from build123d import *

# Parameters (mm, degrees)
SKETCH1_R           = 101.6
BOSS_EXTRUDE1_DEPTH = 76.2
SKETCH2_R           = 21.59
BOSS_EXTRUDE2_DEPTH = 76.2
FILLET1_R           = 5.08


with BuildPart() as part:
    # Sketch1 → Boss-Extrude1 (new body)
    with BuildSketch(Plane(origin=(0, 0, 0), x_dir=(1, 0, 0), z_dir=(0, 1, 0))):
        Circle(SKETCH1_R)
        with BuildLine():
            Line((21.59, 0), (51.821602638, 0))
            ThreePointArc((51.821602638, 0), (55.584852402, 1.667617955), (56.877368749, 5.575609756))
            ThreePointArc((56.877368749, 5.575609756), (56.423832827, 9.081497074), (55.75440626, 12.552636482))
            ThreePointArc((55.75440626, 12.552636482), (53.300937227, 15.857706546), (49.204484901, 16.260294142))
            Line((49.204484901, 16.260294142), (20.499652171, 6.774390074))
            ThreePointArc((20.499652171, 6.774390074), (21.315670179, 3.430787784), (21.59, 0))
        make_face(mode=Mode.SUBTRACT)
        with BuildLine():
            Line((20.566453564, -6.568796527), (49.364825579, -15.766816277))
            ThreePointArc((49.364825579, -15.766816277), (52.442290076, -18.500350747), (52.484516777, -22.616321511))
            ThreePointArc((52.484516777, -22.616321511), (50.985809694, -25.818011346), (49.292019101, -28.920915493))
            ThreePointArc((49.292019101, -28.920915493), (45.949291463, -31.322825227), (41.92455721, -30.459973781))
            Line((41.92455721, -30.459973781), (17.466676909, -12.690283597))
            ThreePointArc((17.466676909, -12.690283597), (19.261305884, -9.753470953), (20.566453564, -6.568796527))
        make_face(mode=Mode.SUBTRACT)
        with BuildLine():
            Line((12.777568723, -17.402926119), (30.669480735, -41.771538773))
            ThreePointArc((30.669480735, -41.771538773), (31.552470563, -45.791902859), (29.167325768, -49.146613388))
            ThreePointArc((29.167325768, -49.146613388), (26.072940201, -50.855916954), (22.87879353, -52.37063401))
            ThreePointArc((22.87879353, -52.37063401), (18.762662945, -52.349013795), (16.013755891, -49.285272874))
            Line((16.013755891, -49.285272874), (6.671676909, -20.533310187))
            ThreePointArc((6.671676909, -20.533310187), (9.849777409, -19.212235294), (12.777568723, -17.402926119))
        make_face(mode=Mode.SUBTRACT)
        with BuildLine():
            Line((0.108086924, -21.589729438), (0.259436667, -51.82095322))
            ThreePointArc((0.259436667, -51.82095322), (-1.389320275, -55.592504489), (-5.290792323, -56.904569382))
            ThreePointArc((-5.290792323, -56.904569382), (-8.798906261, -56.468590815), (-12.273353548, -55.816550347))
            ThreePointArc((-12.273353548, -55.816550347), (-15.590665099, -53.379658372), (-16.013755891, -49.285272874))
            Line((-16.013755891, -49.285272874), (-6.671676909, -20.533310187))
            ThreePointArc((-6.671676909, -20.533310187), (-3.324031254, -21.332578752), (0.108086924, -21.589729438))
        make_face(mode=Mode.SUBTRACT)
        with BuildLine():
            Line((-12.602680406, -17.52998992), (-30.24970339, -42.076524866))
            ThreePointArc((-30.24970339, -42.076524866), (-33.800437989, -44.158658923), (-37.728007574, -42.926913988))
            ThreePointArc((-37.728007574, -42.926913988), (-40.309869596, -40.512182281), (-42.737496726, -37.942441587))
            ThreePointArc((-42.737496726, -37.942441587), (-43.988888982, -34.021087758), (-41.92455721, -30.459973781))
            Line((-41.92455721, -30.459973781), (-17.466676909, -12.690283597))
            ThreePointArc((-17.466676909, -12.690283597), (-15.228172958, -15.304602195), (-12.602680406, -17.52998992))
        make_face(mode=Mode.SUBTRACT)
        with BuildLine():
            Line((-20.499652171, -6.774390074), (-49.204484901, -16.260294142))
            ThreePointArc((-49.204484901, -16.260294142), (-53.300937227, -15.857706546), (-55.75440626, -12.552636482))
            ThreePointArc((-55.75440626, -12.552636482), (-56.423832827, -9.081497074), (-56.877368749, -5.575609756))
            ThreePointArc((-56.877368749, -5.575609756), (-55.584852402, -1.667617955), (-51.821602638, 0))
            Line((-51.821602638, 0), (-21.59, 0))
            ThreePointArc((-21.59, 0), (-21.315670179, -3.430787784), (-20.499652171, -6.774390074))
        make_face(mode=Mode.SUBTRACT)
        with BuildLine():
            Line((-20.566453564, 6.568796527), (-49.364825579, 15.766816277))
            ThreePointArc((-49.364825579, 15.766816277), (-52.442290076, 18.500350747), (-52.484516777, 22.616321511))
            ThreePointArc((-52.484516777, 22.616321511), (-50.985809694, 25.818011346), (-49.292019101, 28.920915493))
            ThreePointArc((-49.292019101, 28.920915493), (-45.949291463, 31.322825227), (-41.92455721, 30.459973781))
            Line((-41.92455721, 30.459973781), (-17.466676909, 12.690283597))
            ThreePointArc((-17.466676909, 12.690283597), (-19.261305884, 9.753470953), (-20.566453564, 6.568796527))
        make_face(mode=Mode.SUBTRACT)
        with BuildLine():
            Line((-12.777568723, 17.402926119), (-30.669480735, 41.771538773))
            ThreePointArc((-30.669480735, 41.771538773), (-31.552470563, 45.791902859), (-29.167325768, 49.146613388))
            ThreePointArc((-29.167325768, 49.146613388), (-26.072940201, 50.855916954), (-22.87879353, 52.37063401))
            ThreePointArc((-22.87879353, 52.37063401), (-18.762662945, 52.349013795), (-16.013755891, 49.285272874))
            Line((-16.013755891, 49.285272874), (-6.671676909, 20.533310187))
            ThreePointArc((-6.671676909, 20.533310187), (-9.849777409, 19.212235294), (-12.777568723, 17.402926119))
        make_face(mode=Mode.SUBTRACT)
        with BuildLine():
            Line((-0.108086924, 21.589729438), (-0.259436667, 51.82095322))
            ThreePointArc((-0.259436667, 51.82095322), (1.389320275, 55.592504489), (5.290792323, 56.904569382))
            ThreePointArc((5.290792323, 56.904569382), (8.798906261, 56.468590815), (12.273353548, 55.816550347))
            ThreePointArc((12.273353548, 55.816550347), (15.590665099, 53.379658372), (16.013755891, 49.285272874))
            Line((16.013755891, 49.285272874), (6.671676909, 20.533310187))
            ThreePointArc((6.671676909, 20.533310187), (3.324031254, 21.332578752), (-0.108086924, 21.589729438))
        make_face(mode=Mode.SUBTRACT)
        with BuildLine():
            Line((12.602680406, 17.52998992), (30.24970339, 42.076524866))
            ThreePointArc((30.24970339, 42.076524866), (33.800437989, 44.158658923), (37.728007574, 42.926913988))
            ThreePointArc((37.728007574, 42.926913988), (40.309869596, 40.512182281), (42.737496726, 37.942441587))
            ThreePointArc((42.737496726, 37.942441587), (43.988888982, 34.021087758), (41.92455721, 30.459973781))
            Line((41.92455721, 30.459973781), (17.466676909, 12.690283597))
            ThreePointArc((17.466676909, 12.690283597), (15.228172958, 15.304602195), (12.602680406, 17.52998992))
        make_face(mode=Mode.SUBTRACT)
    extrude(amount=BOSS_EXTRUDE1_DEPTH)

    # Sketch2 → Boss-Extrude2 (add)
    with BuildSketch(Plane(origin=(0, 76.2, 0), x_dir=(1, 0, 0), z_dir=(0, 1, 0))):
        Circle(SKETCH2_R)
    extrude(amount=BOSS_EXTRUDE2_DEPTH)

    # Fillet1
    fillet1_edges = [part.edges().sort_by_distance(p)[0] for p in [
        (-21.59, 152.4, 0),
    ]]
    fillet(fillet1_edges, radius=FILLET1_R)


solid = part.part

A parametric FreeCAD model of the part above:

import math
import FreeCAD as App
import Part
import Sketcher

V = App.Vector
Q = App.Units.Quantity


def edges_at(feature, points):
    """Names of the edges that pass closest to the given points."""
    edges = feature.Shape.Edges
    near = lambda p: min(range(len(edges)), key=lambda i: edges[i].distToShape(Part.Vertex(*p))[0])
    return sorted({f"Edge{near(p) + 1}" for p in points})

doc = App.newDocument("Part")
body = doc.addObject("PartDesign::Body", "Body")

sketch1 = doc.addObject("Sketcher::SketchObject", "Sketch")
body.addObject(sketch1)
sketch1.AttachmentSupport = (doc.XZ_Plane, [""])
sketch1.MapMode = "FlatFace"
sketch1.addGeometry(Part.Circle(V(0, 0, 0), V(0, 0, 1), 102), False)
sketch1.addGeometry(Part.ArcOfCircle(Part.Circle(V(0, 0, 0), V(0, 0, 1), 22), math.radians(89.71), math.radians(108)), False)
sketch1.addGeometry(Part.LineSegment(V(0, 22, 0), V(0, 52, 0)), False)
sketch1.addGeometry(Part.ArcOfCircle(Part.Circle(V(-5, 52, 0), V(0, 0, 1), 5), math.radians(0), math.radians(95)), False)
sketch1.addGeometry(Part.ArcOfCircle(Part.Circle(V(0, 0, 0), V(0, 0, 1), 57), math.radians(95.31), math.radians(102.4)), False)
sketch1.addGeometry(Part.ArcOfCircle(Part.Circle(V(-11, 51, 0), V(0, 0, 1), 5), math.radians(102), math.radians(198)), False)
sketch1.addGeometry(Part.LineSegment(V(-16, 49, 0), V(-7, 21, 0)), False)
sketch1.addGeometry(Part.ArcOfCircle(Part.Circle(V(0, 0, 0), V(0, 0, 1), 22), math.radians(161.71), math.radians(180)), False)
sketch1.addGeometry(Part.LineSegment(V(-20, 7, 0), V(-49, 16, 0)), False)
sketch1.addGeometry(Part.ArcOfCircle(Part.Circle(V(-51, 11, 0), V(0, 0, 1), 5), math.radians(72), math.radians(167)), False)
sketch1.addGeometry(Part.ArcOfCircle(Part.Circle(V(0, 0, 0), V(0, 0, 1), 57), math.radians(167.31), math.radians(174.4)), False)
sketch1.addGeometry(Part.ArcOfCircle(Part.Circle(V(-52, 5, 0), V(0, 0, 1), 5), math.radians(174), math.radians(270)), False)
sketch1.addGeometry(Part.LineSegment(V(-52, 0, 0), V(-22, 0, 0)), False)
sketch1.addGeometry(Part.ArcOfCircle(Part.Circle(V(0, 0, 0), V(0, 0, 1), 22), math.radians(125.71), math.radians(144)), False)
sketch1.addGeometry(Part.LineSegment(V(-13, 18, 0), V(-30, 42, 0)), False)
sketch1.addGeometry(Part.ArcOfCircle(Part.Circle(V(-34, 39, 0), V(0, 0, 1), 5), math.radians(36), math.radians(131)), False)
sketch1.addGeometry(Part.ArcOfCircle(Part.Circle(V(0, 0, 0), V(0, 0, 1), 57), math.radians(131.31), math.radians(138.4)), False)
sketch1.addGeometry(Part.ArcOfCircle(Part.Circle(V(-39, 35, 0), V(0, 0, 1), 5), math.radians(138), math.radians(234)), False)
sketch1.addGeometry(Part.LineSegment(V(-42, 30, 0), V(-17, 13, 0)), False)
sketch1.addGeometry(Part.ArcOfCircle(Part.Circle(V(0, 0, 0), V(0, 0, 1), 22), math.radians(53.71), math.radians(72)), False)
sketch1.addGeometry(Part.LineSegment(V(13, 17, 0), V(31, 42, 0)), False)
sketch1.addGeometry(Part.ArcOfCircle(Part.Circle(V(27, 45, 0), V(0, 0, 1), 5), math.radians(-36), math.radians(59)), False)
sketch1.addGeometry(Part.ArcOfCircle(Part.Circle(V(0, 0, 0), V(0, 0, 1), 57), math.radians(59.31), math.radians(66.4)), False)
sketch1.addGeometry(Part.ArcOfCircle(Part.Circle(V(21, 48, 0), V(0, 0, 1), 5), math.radians(66), math.radians(162)), False)
sketch1.addGeometry(Part.LineSegment(V(16, 49, 0), V(7, 21, 0)), False)
sketch1.addGeometry(Part.ArcOfCircle(Part.Circle(V(0, 0, 0), V(0, 0, 1), 22), math.radians(17.71), math.radians(36)), False)
sketch1.addGeometry(Part.LineSegment(V(21, 7, 0), V(49, 16, 0)), False)
sketch1.addGeometry(Part.ArcOfCircle(Part.Circle(V(48, 21, 0), V(0, 0, 1), 5), math.radians(-72), math.radians(23)), False)
sketch1.addGeometry(Part.ArcOfCircle(Part.Circle(V(0, 0, 0), V(0, 0, 1), 57), math.radians(23.31), math.radians(30.4)), False)
sketch1.addGeometry(Part.ArcOfCircle(Part.Circle(V(45, 26, 0), V(0, 0, 1), 5), math.radians(30), math.radians(126)), False)
sketch1.addGeometry(Part.LineSegment(V(42, 30, 0), V(17, 13, 0)), False)
sketch1.addGeometry(Part.ArcOfCircle(Part.Circle(V(0, 0, 0), V(0, 0, 1), 22), math.radians(-162.29), math.radians(-144)), False)
sketch1.addGeometry(Part.LineSegment(V(-21, -7, 0), V(-49, -16, 0)), False)
sketch1.addGeometry(Part.ArcOfCircle(Part.Circle(V(-48, -21, 0), V(0, 0, 1), 5), math.radians(108), math.radians(203)), False)
sketch1.addGeometry(Part.ArcOfCircle(Part.Circle(V(0, 0, 0), V(0, 0, 1), 57), math.radians(-156.69), math.radians(-149.6)), False)
sketch1.addGeometry(Part.ArcOfCircle(Part.Circle(V(-45, -26, 0), V(0, 0, 1), 5), math.radians(-150), math.radians(-54)), False)
sketch1.addGeometry(Part.LineSegment(V(-42, -30, 0), V(-17, -13, 0)), False)
sketch1.addGeometry(Part.ArcOfCircle(Part.Circle(V(0, 0, 0), V(0, 0, 1), 22), math.radians(-126.29), math.radians(-108)), False)
sketch1.addGeometry(Part.LineSegment(V(-13, -17, 0), V(-31, -42, 0)), False)
sketch1.addGeometry(Part.ArcOfCircle(Part.Circle(V(-27, -45, 0), V(0, 0, 1), 5), math.radians(144), math.radians(239)), False)
sketch1.addGeometry(Part.ArcOfCircle(Part.Circle(V(0, 0, 0), V(0, 0, 1), 57), math.radians(-120.69), math.radians(-113.6)), False)
sketch1.addGeometry(Part.ArcOfCircle(Part.Circle(V(-21, -48, 0), V(0, 0, 1), 5), math.radians(-114), math.radians(-18)), False)
sketch1.addGeometry(Part.LineSegment(V(-16, -49, 0), V(-7, -21, 0)), False)
sketch1.addGeometry(Part.ArcOfCircle(Part.Circle(V(0, 0, 0), V(0, 0, 1), 22), math.radians(-54.29), math.radians(-36)), False)
sketch1.addGeometry(Part.LineSegment(V(13, -18, 0), V(30, -42, 0)), False)
sketch1.addGeometry(Part.ArcOfCircle(Part.Circle(V(34, -39, 0), V(0, 0, 1), 5), math.radians(-144), math.radians(-49)), False)
sketch1.addGeometry(Part.ArcOfCircle(Part.Circle(V(0, 0, 0), V(0, 0, 1), 57), math.radians(-48.69), math.radians(-41.6)), False)
sketch1.addGeometry(Part.ArcOfCircle(Part.Circle(V(39, -35, 0), V(0, 0, 1), 5), math.radians(-42), math.radians(54)), False)
sketch1.addGeometry(Part.LineSegment(V(42, -30, 0), V(17, -13, 0)), False)
sketch1.addGeometry(Part.LineSegment(V(52, 0, 0), V(22, 0, 0)), False)
sketch1.addGeometry(Part.ArcOfCircle(Part.Circle(V(0, 0, 0), V(0, 0, 1), 22), math.radians(-18.29), math.radians(0)), False)
sketch1.addGeometry(Part.LineSegment(V(20, -7, 0), V(49, -16, 0)), False)
sketch1.addGeometry(Part.ArcOfCircle(Part.Circle(V(51, -11, 0), V(0, 0, 1), 5), math.radians(-108), math.radians(-13)), False)
sketch1.addGeometry(Part.ArcOfCircle(Part.Circle(V(0, 0, 0), V(0, 0, 1), 57), math.radians(-12.69), math.radians(-5.6)), False)
sketch1.addGeometry(Part.ArcOfCircle(Part.Circle(V(52, -5, 0), V(0, 0, 1), 5), math.radians(-6), math.radians(90)), False)
sketch1.addGeometry(Part.ArcOfCircle(Part.Circle(V(0, 0, 0), V(0, 0, 1), 22), math.radians(-90.29), math.radians(-72)), False)
sketch1.addGeometry(Part.LineSegment(V(0, -22, 0), V(0, -52, 0)), False)
sketch1.addGeometry(Part.ArcOfCircle(Part.Circle(V(5, -52, 0), V(0, 0, 1), 5), math.radians(180), math.radians(275)), False)
sketch1.addGeometry(Part.ArcOfCircle(Part.Circle(V(0, 0, 0), V(0, 0, 1), 57), math.radians(-84.69), math.radians(-77.6)), False)
sketch1.addGeometry(Part.ArcOfCircle(Part.Circle(V(11, -51, 0), V(0, 0, 1), 5), math.radians(-78), math.radians(18)), False)
sketch1.addGeometry(Part.LineSegment(V(16, -49, 0), V(7, -21, 0)), False)
sketch1.addConstraint(Sketcher.Constraint("Coincident", 1, 1, 2, 1))
sketch1.addConstraint(Sketcher.Constraint("Tangent", 2, 2, 3, 1))
sketch1.addConstraint(Sketcher.Constraint("Tangent", 3, 2, 4, 1))
sketch1.addConstraint(Sketcher.Constraint("Tangent", 4, 2, 5, 1))
sketch1.addConstraint(Sketcher.Constraint("Tangent", 5, 2, 6, 1))
sketch1.addConstraint(Sketcher.Constraint("Coincident", 6, 2, 1, 2))
sketch1.addConstraint(Sketcher.Constraint("Coincident", 7, 1, 8, 1))
sketch1.addConstraint(Sketcher.Constraint("Tangent", 8, 2, 9, 1))
sketch1.addConstraint(Sketcher.Constraint("Tangent", 9, 2, 10, 1))
sketch1.addConstraint(Sketcher.Constraint("Tangent", 10, 2, 11, 1))
sketch1.addConstraint(Sketcher.Constraint("Tangent", 11, 2, 12, 1))
sketch1.addConstraint(Sketcher.Constraint("Coincident", 12, 2, 7, 2))
sketch1.addConstraint(Sketcher.Constraint("Coincident", 13, 1, 14, 1))
sketch1.addConstraint(Sketcher.Constraint("Tangent", 14, 2, 15, 1))
sketch1.addConstraint(Sketcher.Constraint("Tangent", 15, 2, 16, 1))
sketch1.addConstraint(Sketcher.Constraint("Tangent", 16, 2, 17, 1))
sketch1.addConstraint(Sketcher.Constraint("Tangent", 17, 2, 18, 1))
sketch1.addConstraint(Sketcher.Constraint("Coincident", 18, 2, 13, 2))
sketch1.addConstraint(Sketcher.Constraint("Coincident", 19, 1, 20, 1))
sketch1.addConstraint(Sketcher.Constraint("Tangent", 20, 2, 21, 1))
sketch1.addConstraint(Sketcher.Constraint("Tangent", 21, 2, 22, 1))
sketch1.addConstraint(Sketcher.Constraint("Tangent", 22, 2, 23, 1))
sketch1.addConstraint(Sketcher.Constraint("Tangent", 23, 2, 24, 1))
sketch1.addConstraint(Sketcher.Constraint("Coincident", 24, 2, 19, 2))
sketch1.addConstraint(Sketcher.Constraint("Coincident", 25, 1, 26, 1))
sketch1.addConstraint(Sketcher.Constraint("Tangent", 26, 2, 27, 1))
sketch1.addConstraint(Sketcher.Constraint("Tangent", 27, 2, 28, 1))
sketch1.addConstraint(Sketcher.Constraint("Tangent", 28, 2, 29, 1))
sketch1.addConstraint(Sketcher.Constraint("Tangent", 29, 2, 30, 1))
sketch1.addConstraint(Sketcher.Constraint("Coincident", 30, 2, 25, 2))
sketch1.addConstraint(Sketcher.Constraint("Coincident", 31, 1, 32, 1))
sketch1.addConstraint(Sketcher.Constraint("Tangent", 32, 2, 33, 1))
sketch1.addConstraint(Sketcher.Constraint("Tangent", 33, 2, 34, 1))
sketch1.addConstraint(Sketcher.Constraint("Tangent", 34, 2, 35, 1))
sketch1.addConstraint(Sketcher.Constraint("Tangent", 35, 2, 36, 1))
sketch1.addConstraint(Sketcher.Constraint("Coincident", 36, 2, 31, 2))
sketch1.addConstraint(Sketcher.Constraint("Coincident", 37, 1, 38, 1))
sketch1.addConstraint(Sketcher.Constraint("Tangent", 38, 2, 39, 1))
sketch1.addConstraint(Sketcher.Constraint("Tangent", 39, 2, 40, 1))
sketch1.addConstraint(Sketcher.Constraint("Tangent", 40, 2, 41, 1))
sketch1.addConstraint(Sketcher.Constraint("Tangent", 41, 2, 42, 1))
sketch1.addConstraint(Sketcher.Constraint("Coincident", 42, 2, 37, 2))
sketch1.addConstraint(Sketcher.Constraint("Coincident", 43, 1, 44, 1))
sketch1.addConstraint(Sketcher.Constraint("Tangent", 44, 2, 45, 1))
sketch1.addConstraint(Sketcher.Constraint("Tangent", 45, 2, 46, 1))
sketch1.addConstraint(Sketcher.Constraint("Tangent", 46, 2, 47, 1))
sketch1.addConstraint(Sketcher.Constraint("Tangent", 47, 2, 48, 1))
sketch1.addConstraint(Sketcher.Constraint("Coincident", 48, 2, 43, 2))
sketch1.addConstraint(Sketcher.Constraint("Coincident", 49, 2, 50, 2))
sketch1.addConstraint(Sketcher.Constraint("Coincident", 50, 1, 51, 1))
sketch1.addConstraint(Sketcher.Constraint("Tangent", 51, 2, 52, 1))
sketch1.addConstraint(Sketcher.Constraint("Tangent", 52, 2, 53, 1))
sketch1.addConstraint(Sketcher.Constraint("Tangent", 53, 2, 54, 1))
sketch1.addConstraint(Sketcher.Constraint("Tangent", 54, 2, 49, 1))
sketch1.addConstraint(Sketcher.Constraint("Coincident", 55, 1, 56, 1))
sketch1.addConstraint(Sketcher.Constraint("Tangent", 56, 2, 57, 1))
sketch1.addConstraint(Sketcher.Constraint("Tangent", 57, 2, 58, 1))
sketch1.addConstraint(Sketcher.Constraint("Tangent", 58, 2, 59, 1))
sketch1.addConstraint(Sketcher.Constraint("Tangent", 59, 2, 60, 1))
sketch1.addConstraint(Sketcher.Constraint("Coincident", 60, 2, 55, 2))
sketch1.addConstraint(Sketcher.Constraint("Horizontal", 12))
sketch1.addConstraint(Sketcher.Constraint("Horizontal", 49))
sketch1.addConstraint(Sketcher.Constraint("Coincident", 0, 3, -1, 1))
sketch1.addConstraint(Sketcher.Constraint("Coincident", 1, 3, -1, 1))
sketch1.addConstraint(Sketcher.Constraint("Coincident", 4, 3, -1, 1))
sketch1.addConstraint(Sketcher.Constraint("Coincident", 7, 3, -1, 1))
sketch1.addConstraint(Sketcher.Constraint("Coincident", 10, 3, -1, 1))
sketch1.addConstraint(Sketcher.Constraint("Coincident", 13, 3, -1, 1))
sketch1.addConstraint(Sketcher.Constraint("Coincident", 16, 3, -1, 1))
sketch1.addConstraint(Sketcher.Constraint("Coincident", 19, 3, -1, 1))
sketch1.addConstraint(Sketcher.Constraint("Coincident", 22, 3, -1, 1))
sketch1.addConstraint(Sketcher.Constraint("Coincident", 25, 3, -1, 1))
sketch1.addConstraint(Sketcher.Constraint("Coincident", 28, 3, -1, 1))
sketch1.addConstraint(Sketcher.Constraint("Coincident", 31, 3, -1, 1))
sketch1.addConstraint(Sketcher.Constraint("Coincident", 34, 3, -1, 1))
sketch1.addConstraint(Sketcher.Constraint("Coincident", 37, 3, -1, 1))
sketch1.addConstraint(Sketcher.Constraint("Coincident", 40, 3, -1, 1))
sketch1.addConstraint(Sketcher.Constraint("Coincident", 43, 3, -1, 1))
sketch1.addConstraint(Sketcher.Constraint("Coincident", 46, 3, -1, 1))
sketch1.addConstraint(Sketcher.Constraint("Coincident", 50, 3, -1, 1))
sketch1.addConstraint(Sketcher.Constraint("Coincident", 53, 3, -1, 1))
sketch1.addConstraint(Sketcher.Constraint("Coincident", 55, 3, -1, 1))
sketch1.addConstraint(Sketcher.Constraint("Coincident", 58, 3, -1, 1))
sketch1.addConstraint(Sketcher.Constraint("Equal", 3, 5))
sketch1.addConstraint(Sketcher.Constraint("Equal", 1, 7))
sketch1.addConstraint(Sketcher.Constraint("Equal", 5, 9))
sketch1.addConstraint(Sketcher.Constraint("Equal", 4, 10))
sketch1.addConstraint(Sketcher.Constraint("Equal", 9, 11))
sketch1.addConstraint(Sketcher.Constraint("Equal", 7, 13))
sketch1.addConstraint(Sketcher.Constraint("Equal", 11, 15))
sketch1.addConstraint(Sketcher.Constraint("Equal", 10, 16))
sketch1.addConstraint(Sketcher.Constraint("Equal", 15, 17))
sketch1.addConstraint(Sketcher.Constraint("Equal", 13, 19))
sketch1.addConstraint(Sketcher.Constraint("Equal", 17, 21))
sketch1.addConstraint(Sketcher.Constraint("Equal", 16, 22))
sketch1.addConstraint(Sketcher.Constraint("Equal", 21, 23))
sketch1.addConstraint(Sketcher.Constraint("Equal", 19, 25))
sketch1.addConstraint(Sketcher.Constraint("Equal", 23, 27))
sketch1.addConstraint(Sketcher.Constraint("Equal", 22, 28))
sketch1.addConstraint(Sketcher.Constraint("Equal", 27, 29))
sketch1.addConstraint(Sketcher.Constraint("Equal", 25, 31))
sketch1.addConstraint(Sketcher.Constraint("Equal", 29, 33))
sketch1.addConstraint(Sketcher.Constraint("Equal", 28, 34))
sketch1.addConstraint(Sketcher.Constraint("Equal", 33, 35))
sketch1.addConstraint(Sketcher.Constraint("Equal", 31, 37))
sketch1.addConstraint(Sketcher.Constraint("Equal", 35, 39))
sketch1.addConstraint(Sketcher.Constraint("Equal", 34, 40))
sketch1.addConstraint(Sketcher.Constraint("Equal", 39, 41))
sketch1.addConstraint(Sketcher.Constraint("Equal", 37, 43))
sketch1.addConstraint(Sketcher.Constraint("Equal", 41, 45))
sketch1.addConstraint(Sketcher.Constraint("Equal", 40, 46))
sketch1.addConstraint(Sketcher.Constraint("Equal", 45, 47))
sketch1.addConstraint(Sketcher.Constraint("Equal", 43, 50))
sketch1.addConstraint(Sketcher.Constraint("Equal", 47, 52))
sketch1.addConstraint(Sketcher.Constraint("Equal", 46, 53))
sketch1.addConstraint(Sketcher.Constraint("Equal", 52, 54))
sketch1.addConstraint(Sketcher.Constraint("Equal", 50, 55))
sketch1.addConstraint(Sketcher.Constraint("Equal", 54, 57))
sketch1.addConstraint(Sketcher.Constraint("Equal", 53, 58))
sketch1.addConstraint(Sketcher.Constraint("Equal", 57, 59))
sketch1.addConstraint(Sketcher.Constraint("Symmetric", 26, 2, 32, 2, -1, 1))
sketch1.addConstraint(Sketcher.Constraint("Symmetric", 29, 2, 35, 2, -1, 1))
sketch1.addConstraint(Sketcher.Constraint("Symmetric", 20, 2, 38, 2, -1, 1))
sketch1.addConstraint(Sketcher.Constraint("Symmetric", 23, 2, 41, 2, -1, 1))
sketch1.addConstraint(Sketcher.Constraint("Symmetric", 14, 2, 44, 2, -1, 1))
sketch1.addConstraint(Sketcher.Constraint("Symmetric", 17, 2, 47, 2, -1, 1))
sketch1.addConstraint(Sketcher.Constraint("Symmetric", 8, 2, 51, 2, -1, 1))
sketch1.addConstraint(Sketcher.Constraint("Symmetric", 2, 2, 56, 2, -1, 1))
sketch1.addConstraint(Sketcher.Constraint("Symmetric", 5, 2, 59, 2, -1, 1))
sketch1.addConstraint(Sketcher.Constraint("Symmetric", 5, 2, 23, 2, -2))
sketch1.addConstraint(Sketcher.Constraint("Symmetric", 17, 2, 29, 2, -2))
sketch1.addConstraint(Sketcher.Constraint("Symmetric", 11, 2, 54, 2, -2))
sketch1.addConstraint(Sketcher.Constraint("Horizontal", 6, 2, 24, 2))
sketch1.addConstraint(Sketcher.Constraint("Horizontal", 18, 2, 30, 2))
sketch1.addConstraint(Sketcher.Constraint("Equal", 2, 6))
sketch1.addConstraint(Sketcher.Constraint("Equal", 6, 8))
sketch1.addConstraint(Sketcher.Constraint("Equal", 8, 14))
sketch1.addConstraint(Sketcher.Constraint("Equal", 18, 20))
sketch1.addConstraint(Sketcher.Constraint("Equal", 24, 26))
sketch1.addConstraint(Sketcher.Constraint("Diameter", 0, Q("8 in")))
sketch1.addConstraint(Sketcher.Constraint("Radius", 3, Q("0.2 in")))
sketch1.addConstraint(Sketcher.Constraint("Radius", 1, Q("0.85 in")))
sketch1.addConstraint(Sketcher.Constraint("Radius", 4, Q("2.25 in")))
sketch1.addConstraint(Sketcher.Constraint("Angle", 6, Q("-72 deg")))
sketch1.addConstraint(Sketcher.Constraint("Angle", 18, Q("-36 deg")))
sketch1.addConstraint(Sketcher.Constraint("DistanceX", 3, 3, -1, 1, 4.8205))
sketch1.addConstraint(Sketcher.Constraint("DistanceX", 9, 3, -1, 1, 50.798459))
sketch1.addConstraint(Sketcher.Constraint("DistanceY", -1, 1, 15, 3, 39.111188))
sketch1.addConstraint(Sketcher.Constraint("DistanceY", -1, 1, 27, 3, 20.605982))
sketch1.addConstraint(Sketcher.Constraint("DistanceX", -1, 1, 19, 1, 12.777569))
pad1 = doc.addObject("PartDesign::Pad", "Pad")
body.addObject(pad1)
pad1.Profile = sketch1
pad1.Length = Q("3 in")
pad1.Reversed = True

sketch2 = doc.addObject("Sketcher::SketchObject", "Sketch001")
body.addObject(sketch2)
sketch2.AttachmentSupport = (doc.XZ_Plane, [""])
sketch2.MapMode = "FlatFace"
sketch2.AttachmentOffset = App.Placement(V(0, 0, -3 * 25.4), App.Rotation())
sketch2.addGeometry(Part.Circle(V(0, 0, 0), V(0, 0, 1), 22), False)
sketch2.addConstraint(Sketcher.Constraint("Coincident", 0, 3, -1, 1))
sketch2.addConstraint(Sketcher.Constraint("Diameter", 0, Q("1.7 in")))
pad2 = doc.addObject("PartDesign::Pad", "Pad001")
body.addObject(pad2)
pad2.Profile = sketch2
pad2.Length = Q("3 in")
pad2.Reversed = True
doc.recompute()

fillet = doc.addObject("PartDesign::Fillet", "Fillet")
body.addObject(fillet)
fillet.Base = (pad2, edges_at(pad2, [(-21.59, 152.4, 0)]))
fillet.Radius = Q("0.2 in")

doc.recompute()
